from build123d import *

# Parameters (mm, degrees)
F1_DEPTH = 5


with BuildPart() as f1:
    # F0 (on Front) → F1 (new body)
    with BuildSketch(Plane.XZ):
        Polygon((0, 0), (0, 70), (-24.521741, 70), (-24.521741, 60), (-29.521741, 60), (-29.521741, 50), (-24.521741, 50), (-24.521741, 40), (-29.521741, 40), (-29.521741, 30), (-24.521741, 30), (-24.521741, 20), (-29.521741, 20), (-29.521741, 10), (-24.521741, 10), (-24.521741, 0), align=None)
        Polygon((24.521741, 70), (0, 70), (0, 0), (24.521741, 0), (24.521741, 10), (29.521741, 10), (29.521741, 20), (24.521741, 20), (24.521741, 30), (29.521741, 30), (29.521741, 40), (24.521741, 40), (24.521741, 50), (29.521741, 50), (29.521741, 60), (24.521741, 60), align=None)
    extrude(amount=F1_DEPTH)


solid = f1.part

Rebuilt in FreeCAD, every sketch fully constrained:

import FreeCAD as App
import Part
import Sketcher
Q = App.Units.Quantity


def add_polygon(sketch, points):
    """Adds a closed chain of lines whose ends are joined by coincident constraints."""
    first, n = sketch.GeometryCount, len(points)
    for a, b in zip(points, points[1:] + points[:1]):
        sketch.addGeometry(Part.LineSegment(App.Vector(*a, 0), App.Vector(*b, 0)), False)
    for i in range(n):
        sketch.addConstraint(Sketcher.Constraint("Coincident", first + i, 2, first + (i + 1) % n, 1))

doc = App.newDocument("Part")
body = doc.addObject("PartDesign::Body", "Body")

# Sketch on XZ plane
sketch1 = doc.addObject("Sketcher::SketchObject", "Sketch")
body.addObject(sketch1)
sketch1.AttachmentSupport = (doc.XZ_Plane, [""])
sketch1.MapMode = "FlatFace"
add_polygon(sketch1, [(-25, 70), (-25, 60), (-30, 60), (-30, 50), (-25, 50), (-25, 40), (-30, 40), (-30, 30), (-25, 30), (-25, 20), (-30, 20), (-30, 10), (-25, 10), (-25, 0), (25, 0), (25, 10), (30, 10), (30, 20), (25, 20), (25, 30), (30, 30), (30, 40), (25, 40), (25, 50), (30, 50), (30, 60), (25, 60), (25, 70)])  # lines 0-27
sketch1.addConstraint([
    Sketcher.Constraint("Vertical", 0),
    Sketcher.Constraint("Horizontal", 1),
    Sketcher.Constraint("Vertical", 2),
    Sketcher.Constraint("Horizontal", 3),
    Sketcher.Constraint("Vertical", 4),
    Sketcher.Constraint("Horizontal", 5),
    Sketcher.Constraint("Vertical", 6),
    Sketcher.Constraint("Horizontal", 7),
    Sketcher.Constraint("Vertical", 8),
    Sketcher.Constraint("Horizontal", 9),
    Sketcher.Constraint("Vertical", 10),
    Sketcher.Constraint("Horizontal", 11),
    Sketcher.Constraint("Vertical", 12),
    Sketcher.Constraint("Horizontal", 13),
    Sketcher.Constraint("Vertical", 14),
    Sketcher.Constraint("Horizontal", 15),
    Sketcher.Constraint("Vertical", 16),
    Sketcher.Constraint("Horizontal", 17),
    Sketcher.Constraint("Vertical", 18),
    Sketcher.Constraint("Horizontal", 19),
    Sketcher.Constraint("Vertical", 20),
    Sketcher.Constraint("Horizontal", 21),
    Sketcher.Constraint("Vertical", 22),
    Sketcher.Constraint("Horizontal", 23),
    Sketcher.Constraint("Vertical", 24),
    Sketcher.Constraint("Horizontal", 25),
    Sketcher.Constraint("Vertical", 26),
    Sketcher.Constraint("Horizontal", 27),
    Sketcher.Constraint("Symmetric", 12, 2, 13, 2, -1, 1),
    Sketcher.Constraint("Symmetric", 10, 2, 15, 2, -2),
    Sketcher.Constraint("Symmetric", 8, 2, 17, 2, -2),
    Sketcher.Constraint("Symmetric", 6, 2, 19, 2, -2),
    Sketcher.Constraint("Symmetric", 4, 2, 21, 2, -2),
    Sketcher.Constraint("Symmetric", 2, 2, 23, 2, -2),
    Sketcher.Constraint("Symmetric", 0, 2, 25, 2, -2),
    Sketcher.Constraint("Vertical", 0, 2, 3, 2),
    Sketcher.Constraint("Vertical", 2, 2, 5, 2),
    Sketcher.Constraint("Vertical", 4, 2, 7, 2),
    Sketcher.Constraint("Vertical", 6, 2, 9, 2),
    Sketcher.Constraint("Vertical", 8, 2, 11, 2),
    Sketcher.Constraint("Equal", 0, 2),
    Sketcher.Constraint("Equal", 2, 4),
    Sketcher.Constraint("Equal", 4, 6),
    Sketcher.Constraint("Equal", 6, 8),
    Sketcher.Constraint("Equal", 8, 10),
    Sketcher.Constraint("Equal", 10, 12),
    Sketcher.Constraint("DistanceX", 1, 2, 1, 1, Q("5 mm")),
    Sketcher.Constraint("DistanceY", 0, 2, 0, 1, Q("10 mm")),
    Sketcher.Constraint("DistanceX", 13, 1, 13, 2, Q("49.043482 mm")),
])
pad1 = doc.addObject("PartDesign::Pad", "Pad")
body.addObject(pad1)
pad1.Profile = sketch1
pad1.Length = 5

doc.recompute()
